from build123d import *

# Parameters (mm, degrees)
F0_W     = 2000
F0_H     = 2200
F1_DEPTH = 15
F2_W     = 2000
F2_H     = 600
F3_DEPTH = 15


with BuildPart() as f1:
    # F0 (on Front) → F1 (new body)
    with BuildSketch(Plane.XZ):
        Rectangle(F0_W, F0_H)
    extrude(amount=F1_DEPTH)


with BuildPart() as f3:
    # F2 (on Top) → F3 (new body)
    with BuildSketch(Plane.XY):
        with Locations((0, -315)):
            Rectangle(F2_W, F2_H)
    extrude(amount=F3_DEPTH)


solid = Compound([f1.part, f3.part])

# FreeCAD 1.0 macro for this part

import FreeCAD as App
import Part
import Sketcher
Q = App.Units.Quantity

doc = App.newDocument("Part")
body = doc.addObject("PartDesign::Body", "Body")

sketch1 = body.newObject("Sketcher::SketchObject", "Sketch")
sketch1.AttachmentSupport = (doc.getObject("XZ_Plane"), [""])
sketch1.MapMode = "FlatFace"
sketch1.addGeometry(Part.LineSegment(App.Vector(-1000, 1100, 0), App.Vector(-1000, -1100, 0)), False)
sketch1.addGeometry(Part.LineSegment(App.Vector(-1000, -1100, 0), App.Vector(1000, -1100, 0)), False)
sketch1.addGeometry(Part.LineSegment(App.Vector(1000, -1100, 0), App.Vector(1000, 1100, 0)), False)
sketch1.addGeometry(Part.LineSegment(App.Vector(1000, 1100, 0), App.Vector(-1000, 1100, 0)), False)
sketch1.addConstraint(Sketcher.Constraint("Coincident", 0, 2, 1, 1))
sketch1.addConstraint(Sketcher.Constraint("Coincident", 1, 2, 2, 1))
sketch1.addConstraint(Sketcher.Constraint("Coincident", 2, 2, 3, 1))
sketch1.addConstraint(Sketcher.Constraint("Coincident", 3, 2, 0, 1))
sketch1.addConstraint(Sketcher.Constraint("Vertical", 0))
sketch1.addConstraint(Sketcher.Constraint("Horizontal", 1))
sketch1.addConstraint(Sketcher.Constraint("Vertical", 2))
sketch1.addConstraint(Sketcher.Constraint("Horizontal", 3))
sketch1.addConstraint(Sketcher.Constraint("Symmetric", 0, 2, 2, 2, -1, 1))
sketch1.addConstraint(Sketcher.Constraint("DistanceX", 1, 1, 1, 2, Q("2000 mm")))
sketch1.addConstraint(Sketcher.Constraint("DistanceY", 0, 2, 0, 1, Q("2200 mm")))
pad1 = body.newObject("PartDesign::Pad", "Pad")
pad1.Profile = sketch1
pad1.Length = 15
body2 = doc.addObject("PartDesign::Body", "Body001")

sketch2 = body2.newObject("Sketcher::SketchObject", "Sketch001")
sketch2.AttachmentSupport = (doc.getObject("XY_Plane001"), [""])
sketch2.MapMode = "FlatFace"
sketch2.addGeometry(Part.LineSegment(App.Vector(-1000, -15, 0), App.Vector(-1000, -615, 0)), False)
sketch2.addGeometry(Part.LineSegment(App.Vector(-1000, -615, 0), App.Vector(1000, -615, 0)), False)
sketch2.addGeometry(Part.LineSegment(App.Vector(1000, -615, 0), App.Vector(1000, -15, 0)), False)
sketch2.addGeometry(Part.LineSegment(App.Vector(1000, -15, 0), App.Vector(-1000, -15, 0)), False)
sketch2.addConstraint(Sketcher.Constraint("Coincident", 0, 2, 1, 1))
sketch2.addConstraint(Sketcher.Constraint("Coincident", 1, 2, 2, 1))
sketch2.addConstraint(Sketcher.Constraint("Coincident", 2, 2, 3, 1))
sketch2.addConstraint(Sketcher.Constraint("Coincident", 3, 2, 0, 1))
sketch2.addConstraint(Sketcher.Constraint("Vertical", 0))
sketch2.addConstraint(Sketcher.Constraint("Horizontal", 1))
sketch2.addConstraint(Sketcher.Constraint("Vertical", 2))
sketch2.addConstraint(Sketcher.Constraint("Horizontal", 3))
sketch2.addConstraint(Sketcher.Constraint("DistanceX", 1, 1, 1, 2, Q("2000 mm")))
sketch2.addConstraint(Sketcher.Constraint("DistanceY", 0, 2, 0, 1, Q("600 mm")))
sketch2.addConstraint(Sketcher.Constraint("DistanceX", 0, 2, -1, 1, Q("1000 mm")))
sketch2.addConstraint(Sketcher.Constraint("DistanceY", 0, 2, -1, 1, Q("615 mm")))
pad2 = body2.newObject("PartDesign::Pad", "Pad001")
pad2.Profile = sketch2
pad2.Length = 15

doc.recompute()
